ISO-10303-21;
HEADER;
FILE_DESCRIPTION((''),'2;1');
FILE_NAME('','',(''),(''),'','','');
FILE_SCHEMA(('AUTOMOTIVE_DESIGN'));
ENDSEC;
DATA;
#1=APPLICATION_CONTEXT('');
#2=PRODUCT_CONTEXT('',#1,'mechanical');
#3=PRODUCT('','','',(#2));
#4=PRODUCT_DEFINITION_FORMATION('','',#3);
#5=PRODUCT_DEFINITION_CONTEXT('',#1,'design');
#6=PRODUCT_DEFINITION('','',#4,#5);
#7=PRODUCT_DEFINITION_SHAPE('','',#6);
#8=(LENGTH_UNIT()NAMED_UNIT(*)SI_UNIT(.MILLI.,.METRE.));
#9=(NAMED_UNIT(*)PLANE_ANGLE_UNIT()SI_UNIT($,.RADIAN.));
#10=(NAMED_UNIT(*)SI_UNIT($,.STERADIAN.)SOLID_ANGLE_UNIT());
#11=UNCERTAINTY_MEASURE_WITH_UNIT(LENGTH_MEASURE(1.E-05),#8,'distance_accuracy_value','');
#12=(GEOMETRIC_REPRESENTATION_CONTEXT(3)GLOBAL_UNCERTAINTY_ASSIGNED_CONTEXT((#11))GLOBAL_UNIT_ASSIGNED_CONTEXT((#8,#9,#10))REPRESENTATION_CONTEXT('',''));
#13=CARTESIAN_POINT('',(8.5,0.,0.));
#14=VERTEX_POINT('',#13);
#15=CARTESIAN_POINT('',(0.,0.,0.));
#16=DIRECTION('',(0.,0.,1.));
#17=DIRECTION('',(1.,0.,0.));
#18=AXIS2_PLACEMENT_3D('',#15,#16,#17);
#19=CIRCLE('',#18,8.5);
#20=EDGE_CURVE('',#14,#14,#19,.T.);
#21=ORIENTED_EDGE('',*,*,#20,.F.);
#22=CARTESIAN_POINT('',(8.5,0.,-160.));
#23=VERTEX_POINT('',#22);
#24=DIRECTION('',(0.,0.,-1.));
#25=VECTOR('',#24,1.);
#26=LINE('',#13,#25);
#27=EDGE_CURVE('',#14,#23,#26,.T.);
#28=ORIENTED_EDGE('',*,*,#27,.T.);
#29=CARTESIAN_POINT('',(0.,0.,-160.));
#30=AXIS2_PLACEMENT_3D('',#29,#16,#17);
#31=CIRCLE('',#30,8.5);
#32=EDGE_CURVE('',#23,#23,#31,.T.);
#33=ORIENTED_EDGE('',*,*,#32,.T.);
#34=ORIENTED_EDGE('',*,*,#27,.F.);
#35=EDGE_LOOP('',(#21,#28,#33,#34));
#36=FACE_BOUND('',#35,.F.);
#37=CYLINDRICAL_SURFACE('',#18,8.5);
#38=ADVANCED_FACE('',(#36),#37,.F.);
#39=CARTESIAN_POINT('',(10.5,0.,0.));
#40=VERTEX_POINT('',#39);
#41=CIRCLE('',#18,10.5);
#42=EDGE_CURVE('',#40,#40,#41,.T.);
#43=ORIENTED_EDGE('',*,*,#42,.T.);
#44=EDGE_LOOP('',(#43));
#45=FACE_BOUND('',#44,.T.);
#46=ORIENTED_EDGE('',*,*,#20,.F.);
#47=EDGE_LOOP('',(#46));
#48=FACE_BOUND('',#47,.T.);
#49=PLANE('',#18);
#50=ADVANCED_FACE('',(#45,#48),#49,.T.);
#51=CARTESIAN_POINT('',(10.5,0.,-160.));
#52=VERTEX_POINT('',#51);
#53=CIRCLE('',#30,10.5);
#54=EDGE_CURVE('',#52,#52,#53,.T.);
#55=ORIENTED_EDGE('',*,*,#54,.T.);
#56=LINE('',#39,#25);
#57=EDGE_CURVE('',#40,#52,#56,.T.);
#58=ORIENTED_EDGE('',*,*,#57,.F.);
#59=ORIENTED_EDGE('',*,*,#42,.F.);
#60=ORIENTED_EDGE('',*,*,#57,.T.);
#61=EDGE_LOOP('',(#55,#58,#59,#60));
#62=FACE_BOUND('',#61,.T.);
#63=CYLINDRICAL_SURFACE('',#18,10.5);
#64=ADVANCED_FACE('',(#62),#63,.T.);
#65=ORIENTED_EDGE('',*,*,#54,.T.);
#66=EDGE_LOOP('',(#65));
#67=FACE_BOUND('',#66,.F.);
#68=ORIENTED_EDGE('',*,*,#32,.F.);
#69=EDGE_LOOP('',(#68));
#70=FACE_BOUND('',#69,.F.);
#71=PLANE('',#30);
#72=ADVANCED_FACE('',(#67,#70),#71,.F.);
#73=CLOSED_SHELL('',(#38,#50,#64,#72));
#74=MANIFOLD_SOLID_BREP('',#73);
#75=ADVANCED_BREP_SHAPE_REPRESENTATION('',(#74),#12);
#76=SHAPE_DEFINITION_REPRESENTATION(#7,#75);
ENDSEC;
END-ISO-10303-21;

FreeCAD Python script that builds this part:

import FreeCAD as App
import Part
import Sketcher
Q = App.Units.Quantity

doc = App.newDocument("Part")
body = doc.addObject("PartDesign::Body", "Body")

# Sketch on XY plane
sketch1 = body.newObject("Sketcher::SketchObject", "Sketch")
sketch1.AttachmentSupport = (doc.getObject("XY_Plane"), [""])
sketch1.MapMode = "FlatFace"
sketch1.addGeometry([
    Part.Circle(App.Vector(0, 0, 0), App.Vector(0, 0, 1), 10),
    Part.Circle(App.Vector(0, 0, 0), App.Vector(0, 0, 1), 8),
], False)
sketch1.addConstraint([
    Sketcher.Constraint("Coincident", 0, 3, -1, 1),
    Sketcher.Constraint("Coincident", 1, 3, -1, 1),
    Sketcher.Constraint("Diameter", 0, Q("21 mm")),
    Sketcher.Constraint("Diameter", 1, Q("17 mm")),
])
pad1 = body.newObject("PartDesign::Pad", "Pad")
pad1.Profile = sketch1
pad1.Length = 160
pad1.Reversed = True

doc.recompute()
